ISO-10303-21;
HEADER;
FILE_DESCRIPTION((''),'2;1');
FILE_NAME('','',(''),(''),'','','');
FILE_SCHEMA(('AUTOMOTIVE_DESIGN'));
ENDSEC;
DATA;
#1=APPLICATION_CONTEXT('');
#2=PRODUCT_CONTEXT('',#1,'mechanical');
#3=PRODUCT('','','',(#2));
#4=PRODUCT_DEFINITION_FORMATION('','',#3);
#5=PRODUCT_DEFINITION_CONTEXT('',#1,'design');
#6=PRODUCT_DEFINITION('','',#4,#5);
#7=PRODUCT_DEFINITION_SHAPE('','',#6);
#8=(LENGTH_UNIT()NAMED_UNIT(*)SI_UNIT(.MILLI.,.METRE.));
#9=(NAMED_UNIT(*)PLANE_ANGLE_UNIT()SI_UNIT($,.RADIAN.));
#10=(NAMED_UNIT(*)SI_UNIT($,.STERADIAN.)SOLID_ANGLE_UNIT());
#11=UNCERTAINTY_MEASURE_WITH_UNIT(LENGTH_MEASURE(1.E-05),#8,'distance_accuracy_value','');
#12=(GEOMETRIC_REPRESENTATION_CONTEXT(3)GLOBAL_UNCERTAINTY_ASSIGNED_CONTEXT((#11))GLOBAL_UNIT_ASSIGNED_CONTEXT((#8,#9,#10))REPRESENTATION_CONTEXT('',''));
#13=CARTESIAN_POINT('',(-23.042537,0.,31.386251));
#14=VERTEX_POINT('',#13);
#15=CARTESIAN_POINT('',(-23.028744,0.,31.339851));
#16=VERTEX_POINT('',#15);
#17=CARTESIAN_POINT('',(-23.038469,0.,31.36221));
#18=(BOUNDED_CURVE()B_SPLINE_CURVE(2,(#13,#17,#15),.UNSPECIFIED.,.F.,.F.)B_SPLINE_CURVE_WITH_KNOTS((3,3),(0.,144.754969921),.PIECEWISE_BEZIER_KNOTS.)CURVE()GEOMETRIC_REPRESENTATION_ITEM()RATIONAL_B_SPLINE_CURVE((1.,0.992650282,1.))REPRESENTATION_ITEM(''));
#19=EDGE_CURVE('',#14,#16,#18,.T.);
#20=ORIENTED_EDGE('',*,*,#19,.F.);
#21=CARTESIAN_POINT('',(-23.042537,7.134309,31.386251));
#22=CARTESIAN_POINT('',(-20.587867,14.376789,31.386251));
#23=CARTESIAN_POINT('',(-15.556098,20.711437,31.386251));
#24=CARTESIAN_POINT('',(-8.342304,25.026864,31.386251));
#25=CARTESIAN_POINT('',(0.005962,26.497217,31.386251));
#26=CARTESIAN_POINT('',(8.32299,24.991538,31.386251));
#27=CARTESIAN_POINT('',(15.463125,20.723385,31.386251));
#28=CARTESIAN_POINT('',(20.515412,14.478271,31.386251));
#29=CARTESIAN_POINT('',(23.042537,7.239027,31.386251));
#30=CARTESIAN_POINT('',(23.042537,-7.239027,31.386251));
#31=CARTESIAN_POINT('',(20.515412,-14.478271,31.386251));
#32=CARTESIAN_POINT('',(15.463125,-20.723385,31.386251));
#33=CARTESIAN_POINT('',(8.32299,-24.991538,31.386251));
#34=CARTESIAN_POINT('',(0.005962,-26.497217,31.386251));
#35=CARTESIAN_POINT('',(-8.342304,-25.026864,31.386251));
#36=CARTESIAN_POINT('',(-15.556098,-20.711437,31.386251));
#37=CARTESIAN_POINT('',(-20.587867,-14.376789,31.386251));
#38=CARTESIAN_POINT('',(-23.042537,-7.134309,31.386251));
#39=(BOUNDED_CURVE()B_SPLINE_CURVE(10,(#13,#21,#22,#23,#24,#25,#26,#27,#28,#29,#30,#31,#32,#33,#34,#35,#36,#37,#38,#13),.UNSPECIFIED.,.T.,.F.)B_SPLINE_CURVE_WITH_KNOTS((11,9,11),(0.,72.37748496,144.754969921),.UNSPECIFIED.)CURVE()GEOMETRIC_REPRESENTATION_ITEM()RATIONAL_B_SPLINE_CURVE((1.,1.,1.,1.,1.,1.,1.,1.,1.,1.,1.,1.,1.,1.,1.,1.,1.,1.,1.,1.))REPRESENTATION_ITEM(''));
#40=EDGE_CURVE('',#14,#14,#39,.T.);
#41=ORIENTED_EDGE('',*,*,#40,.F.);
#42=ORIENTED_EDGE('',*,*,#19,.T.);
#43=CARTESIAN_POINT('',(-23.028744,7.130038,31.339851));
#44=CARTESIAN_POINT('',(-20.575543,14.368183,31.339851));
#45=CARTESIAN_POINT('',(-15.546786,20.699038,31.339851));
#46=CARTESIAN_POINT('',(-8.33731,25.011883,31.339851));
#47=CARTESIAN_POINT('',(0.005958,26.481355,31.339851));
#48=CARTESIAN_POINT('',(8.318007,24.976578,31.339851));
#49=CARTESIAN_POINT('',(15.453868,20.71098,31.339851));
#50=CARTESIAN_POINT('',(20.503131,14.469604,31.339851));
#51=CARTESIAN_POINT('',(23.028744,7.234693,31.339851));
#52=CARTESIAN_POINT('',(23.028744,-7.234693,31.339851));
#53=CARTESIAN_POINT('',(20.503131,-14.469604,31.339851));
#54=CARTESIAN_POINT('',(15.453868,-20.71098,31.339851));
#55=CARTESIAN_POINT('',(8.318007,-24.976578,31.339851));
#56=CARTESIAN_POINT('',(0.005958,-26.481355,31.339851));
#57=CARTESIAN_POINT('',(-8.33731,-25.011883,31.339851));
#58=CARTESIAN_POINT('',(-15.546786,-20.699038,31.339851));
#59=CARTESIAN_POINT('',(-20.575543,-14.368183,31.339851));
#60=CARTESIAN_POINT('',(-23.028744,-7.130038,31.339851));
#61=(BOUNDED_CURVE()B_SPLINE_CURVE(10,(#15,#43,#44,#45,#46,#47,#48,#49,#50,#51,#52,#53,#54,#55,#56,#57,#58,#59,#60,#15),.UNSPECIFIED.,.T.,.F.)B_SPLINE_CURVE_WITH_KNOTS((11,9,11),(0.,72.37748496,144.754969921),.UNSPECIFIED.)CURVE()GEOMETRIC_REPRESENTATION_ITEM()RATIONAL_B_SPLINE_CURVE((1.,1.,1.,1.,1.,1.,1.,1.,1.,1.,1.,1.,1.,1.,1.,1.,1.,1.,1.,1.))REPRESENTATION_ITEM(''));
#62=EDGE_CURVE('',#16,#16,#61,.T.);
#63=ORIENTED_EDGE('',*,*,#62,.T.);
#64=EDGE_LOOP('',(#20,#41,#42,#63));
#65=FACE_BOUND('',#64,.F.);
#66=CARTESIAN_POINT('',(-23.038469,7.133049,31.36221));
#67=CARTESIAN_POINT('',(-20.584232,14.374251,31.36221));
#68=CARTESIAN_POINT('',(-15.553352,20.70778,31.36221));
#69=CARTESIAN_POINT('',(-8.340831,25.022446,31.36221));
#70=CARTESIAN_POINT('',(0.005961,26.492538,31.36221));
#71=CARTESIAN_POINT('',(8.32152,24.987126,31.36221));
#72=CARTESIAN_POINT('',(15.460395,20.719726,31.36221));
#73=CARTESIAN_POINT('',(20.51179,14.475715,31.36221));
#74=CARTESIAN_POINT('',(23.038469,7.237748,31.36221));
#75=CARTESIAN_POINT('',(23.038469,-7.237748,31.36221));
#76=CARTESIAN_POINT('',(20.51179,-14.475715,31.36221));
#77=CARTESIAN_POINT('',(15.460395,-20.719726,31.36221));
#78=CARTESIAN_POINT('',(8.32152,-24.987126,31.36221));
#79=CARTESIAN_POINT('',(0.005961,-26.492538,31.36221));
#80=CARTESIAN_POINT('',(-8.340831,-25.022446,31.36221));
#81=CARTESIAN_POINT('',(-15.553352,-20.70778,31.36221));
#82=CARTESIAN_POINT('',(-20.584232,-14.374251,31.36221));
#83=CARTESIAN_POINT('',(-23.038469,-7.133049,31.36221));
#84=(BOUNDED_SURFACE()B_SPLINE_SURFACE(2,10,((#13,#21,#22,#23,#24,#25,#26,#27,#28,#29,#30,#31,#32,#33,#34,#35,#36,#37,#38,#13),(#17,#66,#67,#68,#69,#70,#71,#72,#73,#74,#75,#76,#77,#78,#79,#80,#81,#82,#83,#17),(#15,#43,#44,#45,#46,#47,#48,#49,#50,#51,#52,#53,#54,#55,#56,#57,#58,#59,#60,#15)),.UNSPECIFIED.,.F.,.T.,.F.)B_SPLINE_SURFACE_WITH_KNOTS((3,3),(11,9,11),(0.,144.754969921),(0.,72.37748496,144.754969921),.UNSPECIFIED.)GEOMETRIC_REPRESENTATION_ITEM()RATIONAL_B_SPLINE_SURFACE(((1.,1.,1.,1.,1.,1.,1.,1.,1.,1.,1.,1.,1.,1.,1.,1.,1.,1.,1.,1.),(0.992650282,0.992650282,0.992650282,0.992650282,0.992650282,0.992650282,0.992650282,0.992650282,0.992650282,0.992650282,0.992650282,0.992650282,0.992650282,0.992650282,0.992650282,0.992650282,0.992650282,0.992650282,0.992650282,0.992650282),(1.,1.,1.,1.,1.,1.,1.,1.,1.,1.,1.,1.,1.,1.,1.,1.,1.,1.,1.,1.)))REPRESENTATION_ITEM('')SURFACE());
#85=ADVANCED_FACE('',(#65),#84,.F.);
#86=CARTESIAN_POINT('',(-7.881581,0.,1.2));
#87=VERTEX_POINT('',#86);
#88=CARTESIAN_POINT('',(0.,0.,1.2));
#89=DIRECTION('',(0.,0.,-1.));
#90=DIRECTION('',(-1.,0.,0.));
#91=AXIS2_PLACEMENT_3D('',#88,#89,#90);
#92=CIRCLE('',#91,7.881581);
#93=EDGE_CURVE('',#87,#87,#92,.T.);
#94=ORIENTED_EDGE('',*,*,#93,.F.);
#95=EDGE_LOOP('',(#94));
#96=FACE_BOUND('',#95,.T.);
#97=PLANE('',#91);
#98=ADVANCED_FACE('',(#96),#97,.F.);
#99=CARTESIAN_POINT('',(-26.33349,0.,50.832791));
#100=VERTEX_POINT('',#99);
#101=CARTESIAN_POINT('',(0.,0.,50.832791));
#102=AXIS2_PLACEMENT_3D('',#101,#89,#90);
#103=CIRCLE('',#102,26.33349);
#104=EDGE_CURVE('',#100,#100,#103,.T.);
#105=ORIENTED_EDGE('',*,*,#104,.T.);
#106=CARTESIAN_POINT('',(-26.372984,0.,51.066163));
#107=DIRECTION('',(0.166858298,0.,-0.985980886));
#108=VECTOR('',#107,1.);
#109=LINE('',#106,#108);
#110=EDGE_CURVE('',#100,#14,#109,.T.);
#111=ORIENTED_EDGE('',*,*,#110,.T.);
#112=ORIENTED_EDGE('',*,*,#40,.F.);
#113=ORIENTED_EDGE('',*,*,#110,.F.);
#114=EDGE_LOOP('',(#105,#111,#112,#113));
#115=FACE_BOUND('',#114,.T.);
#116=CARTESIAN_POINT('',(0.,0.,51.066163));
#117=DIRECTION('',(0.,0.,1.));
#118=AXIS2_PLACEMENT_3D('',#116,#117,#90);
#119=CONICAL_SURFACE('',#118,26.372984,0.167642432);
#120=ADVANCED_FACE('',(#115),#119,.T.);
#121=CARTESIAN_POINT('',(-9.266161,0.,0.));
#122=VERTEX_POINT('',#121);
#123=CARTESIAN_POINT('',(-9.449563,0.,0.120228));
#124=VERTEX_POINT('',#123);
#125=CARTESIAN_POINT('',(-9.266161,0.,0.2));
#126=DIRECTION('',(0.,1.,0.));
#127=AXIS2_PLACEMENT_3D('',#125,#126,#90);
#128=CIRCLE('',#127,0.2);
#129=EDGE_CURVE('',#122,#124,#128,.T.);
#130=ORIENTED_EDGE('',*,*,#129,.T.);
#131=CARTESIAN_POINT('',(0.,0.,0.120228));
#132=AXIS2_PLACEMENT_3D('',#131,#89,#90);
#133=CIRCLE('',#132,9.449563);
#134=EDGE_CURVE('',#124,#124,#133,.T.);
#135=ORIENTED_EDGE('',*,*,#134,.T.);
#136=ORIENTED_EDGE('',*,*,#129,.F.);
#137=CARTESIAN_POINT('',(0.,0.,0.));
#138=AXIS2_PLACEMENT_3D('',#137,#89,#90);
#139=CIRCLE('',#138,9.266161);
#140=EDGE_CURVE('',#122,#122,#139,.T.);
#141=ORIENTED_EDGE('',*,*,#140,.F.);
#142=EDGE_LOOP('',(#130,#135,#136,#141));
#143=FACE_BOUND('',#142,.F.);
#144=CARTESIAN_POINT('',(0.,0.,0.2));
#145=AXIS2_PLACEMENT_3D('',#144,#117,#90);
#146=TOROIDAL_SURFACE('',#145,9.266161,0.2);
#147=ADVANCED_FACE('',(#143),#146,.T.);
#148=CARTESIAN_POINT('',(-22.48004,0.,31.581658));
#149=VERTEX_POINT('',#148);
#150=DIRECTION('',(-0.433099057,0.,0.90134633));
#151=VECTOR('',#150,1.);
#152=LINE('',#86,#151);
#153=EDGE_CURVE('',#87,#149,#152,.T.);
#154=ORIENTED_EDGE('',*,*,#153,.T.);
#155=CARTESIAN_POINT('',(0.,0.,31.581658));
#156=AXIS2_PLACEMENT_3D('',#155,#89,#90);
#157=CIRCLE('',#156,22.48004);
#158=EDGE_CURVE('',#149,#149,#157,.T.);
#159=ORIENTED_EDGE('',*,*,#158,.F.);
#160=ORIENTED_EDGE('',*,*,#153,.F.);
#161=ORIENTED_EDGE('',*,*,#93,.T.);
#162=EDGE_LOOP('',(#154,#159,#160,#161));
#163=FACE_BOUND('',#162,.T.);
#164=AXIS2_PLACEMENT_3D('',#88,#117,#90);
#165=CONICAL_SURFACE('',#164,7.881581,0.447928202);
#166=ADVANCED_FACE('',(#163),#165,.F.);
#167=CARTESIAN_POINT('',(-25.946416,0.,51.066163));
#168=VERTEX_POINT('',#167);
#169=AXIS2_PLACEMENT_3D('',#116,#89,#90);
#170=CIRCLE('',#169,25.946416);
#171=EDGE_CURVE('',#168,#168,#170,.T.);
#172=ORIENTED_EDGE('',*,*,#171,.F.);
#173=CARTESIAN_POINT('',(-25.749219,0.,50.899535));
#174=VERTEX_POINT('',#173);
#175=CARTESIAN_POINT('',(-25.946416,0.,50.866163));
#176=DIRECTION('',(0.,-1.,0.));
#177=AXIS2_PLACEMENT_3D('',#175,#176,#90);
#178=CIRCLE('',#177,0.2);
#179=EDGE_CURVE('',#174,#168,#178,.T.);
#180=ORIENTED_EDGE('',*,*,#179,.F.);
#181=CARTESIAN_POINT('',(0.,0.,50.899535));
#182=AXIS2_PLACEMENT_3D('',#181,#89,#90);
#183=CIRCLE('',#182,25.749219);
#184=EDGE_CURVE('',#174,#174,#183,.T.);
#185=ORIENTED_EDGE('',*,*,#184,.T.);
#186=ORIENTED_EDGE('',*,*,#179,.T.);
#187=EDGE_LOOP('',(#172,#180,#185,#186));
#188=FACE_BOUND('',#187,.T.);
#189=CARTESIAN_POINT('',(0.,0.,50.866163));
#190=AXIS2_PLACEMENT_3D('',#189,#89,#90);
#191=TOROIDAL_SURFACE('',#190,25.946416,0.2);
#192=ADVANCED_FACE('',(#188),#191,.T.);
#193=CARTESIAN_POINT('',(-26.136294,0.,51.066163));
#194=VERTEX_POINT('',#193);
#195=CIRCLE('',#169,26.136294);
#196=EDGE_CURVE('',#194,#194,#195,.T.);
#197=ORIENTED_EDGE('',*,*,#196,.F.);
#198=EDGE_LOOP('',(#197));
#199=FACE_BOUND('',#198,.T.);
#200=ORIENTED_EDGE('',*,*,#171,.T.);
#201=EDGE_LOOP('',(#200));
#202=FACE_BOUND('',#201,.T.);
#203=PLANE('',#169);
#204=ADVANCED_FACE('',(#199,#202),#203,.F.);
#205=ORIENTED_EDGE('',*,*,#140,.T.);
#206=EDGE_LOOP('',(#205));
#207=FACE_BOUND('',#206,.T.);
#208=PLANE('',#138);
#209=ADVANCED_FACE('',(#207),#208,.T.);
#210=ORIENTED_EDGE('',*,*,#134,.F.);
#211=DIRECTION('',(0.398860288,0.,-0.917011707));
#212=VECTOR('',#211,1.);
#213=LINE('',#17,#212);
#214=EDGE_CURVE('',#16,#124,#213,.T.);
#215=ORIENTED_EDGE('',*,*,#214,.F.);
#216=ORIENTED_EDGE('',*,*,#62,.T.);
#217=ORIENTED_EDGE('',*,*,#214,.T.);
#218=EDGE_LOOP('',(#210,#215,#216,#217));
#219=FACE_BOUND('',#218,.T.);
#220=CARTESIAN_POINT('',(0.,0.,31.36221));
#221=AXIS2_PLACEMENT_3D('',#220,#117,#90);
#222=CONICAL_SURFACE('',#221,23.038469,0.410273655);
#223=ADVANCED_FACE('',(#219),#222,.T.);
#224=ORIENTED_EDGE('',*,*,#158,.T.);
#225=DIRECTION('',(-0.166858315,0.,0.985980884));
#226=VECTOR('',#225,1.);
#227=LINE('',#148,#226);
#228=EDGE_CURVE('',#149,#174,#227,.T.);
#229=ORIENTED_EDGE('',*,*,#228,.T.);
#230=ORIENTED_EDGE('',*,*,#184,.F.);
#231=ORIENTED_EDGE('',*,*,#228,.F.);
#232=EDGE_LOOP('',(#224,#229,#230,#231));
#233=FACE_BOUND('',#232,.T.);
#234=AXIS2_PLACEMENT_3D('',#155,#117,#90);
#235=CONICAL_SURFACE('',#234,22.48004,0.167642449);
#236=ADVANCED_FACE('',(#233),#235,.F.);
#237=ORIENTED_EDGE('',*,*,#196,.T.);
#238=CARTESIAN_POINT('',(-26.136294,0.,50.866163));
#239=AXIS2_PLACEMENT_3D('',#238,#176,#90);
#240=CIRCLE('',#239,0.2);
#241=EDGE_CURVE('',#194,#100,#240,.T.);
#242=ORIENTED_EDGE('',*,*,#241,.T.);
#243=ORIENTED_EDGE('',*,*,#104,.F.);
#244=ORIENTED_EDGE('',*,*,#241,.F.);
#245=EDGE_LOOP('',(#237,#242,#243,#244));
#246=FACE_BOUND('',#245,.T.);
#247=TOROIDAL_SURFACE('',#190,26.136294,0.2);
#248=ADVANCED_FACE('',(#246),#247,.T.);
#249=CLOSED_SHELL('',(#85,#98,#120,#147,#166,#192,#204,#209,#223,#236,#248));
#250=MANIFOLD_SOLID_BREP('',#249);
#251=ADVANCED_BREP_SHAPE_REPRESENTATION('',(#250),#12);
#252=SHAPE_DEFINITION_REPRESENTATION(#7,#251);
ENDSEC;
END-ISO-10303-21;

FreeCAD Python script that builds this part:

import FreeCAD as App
import Part
import Sketcher
Q = App.Units.Quantity


def edges_at(feature, points):
    """Names of the edges that pass closest to the given points."""
    edges = feature.Shape.Edges
    near = lambda p: min(range(len(edges)), key=lambda i: edges[i].distToShape(Part.Vertex(*p))[0])
    return sorted({f"Edge{near(p) + 1}" for p in points})

doc = App.newDocument("Part")
body = doc.addObject("PartDesign::Body", "Body")

# Sketch on XZ plane
sketch1 = doc.addObject("Sketcher::SketchObject", "Sketch")
body.addObject(sketch1)
sketch1.AttachmentSupport = (doc.XZ_Plane, [""])
sketch1.MapMode = "FlatFace"
sketch1.addGeometry([
    Part.LineSegment(App.Vector(-9.397269, 0, 0), App.Vector(0, 0, 0)),  # 0
    Part.LineSegment(App.Vector(0, 0, 0), App.Vector(0, 1.2, 0)),  # 1
    Part.LineSegment(App.Vector(0, 1.2, 0), App.Vector(-7.881581, 1.2, 0)),  # 2
    Part.LineSegment(App.Vector(-7.881581, 1.2, 0), App.Vector(-22.48004, 31.581658, 0)),  # 3
    Part.LineSegment(App.Vector(-22.48004, 31.581658, 0), App.Vector(-25.777418, 51.066163, 0)),  # 4
    Part.LineSegment(App.Vector(-25.777418, 51.066163, 0), App.Vector(-26.372984, 51.066163, 0)),  # 5
    Part.LineSegment(App.Vector(-26.372984, 51.066163, 0), App.Vector(-23.038469, 31.36221, 0)),  # 6
    Part.LineSegment(App.Vector(-23.038469, 31.36221, 0), App.Vector(-9.397269, 0, 0)),  # 7
], False)
sketch1.addConstraint([
    Sketcher.Constraint("Coincident", 0, 2, 1, 1),
    Sketcher.Constraint("Coincident", 1, 2, 2, 1),
    Sketcher.Constraint("Coincident", 2, 2, 3, 1),
    Sketcher.Constraint("Coincident", 3, 2, 4, 1),
    Sketcher.Constraint("Coincident", 4, 2, 5, 1),
    Sketcher.Constraint("Coincident", 5, 2, 6, 1),
    Sketcher.Constraint("Coincident", 6, 2, 7, 1),
    Sketcher.Constraint("Coincident", 7, 2, 0, 1),
    Sketcher.Constraint("Horizontal", 0),
    Sketcher.Constraint("Vertical", 1),
    Sketcher.Constraint("Horizontal", 2),
    Sketcher.Constraint("Horizontal", 5),
    Sketcher.Constraint("Coincident", 0, 2, -1, 1),
    Sketcher.Constraint("DistanceY", 1, 1, 1, 2, Q("1.2 mm")),
    Sketcher.Constraint("DistanceX", 0, 1, 0, 2, Q("9.397269 mm")),
    Sketcher.Constraint("DistanceX", 2, 2, 2, 1, Q("7.881581 mm")),
    Sketcher.Constraint("DistanceX", 6, 2, 7, 2, Q("13.6412 mm")),
    Sketcher.Constraint("DistanceX", 5, 2, 5, 1, Q("0.595566 mm")),
    Sketcher.Constraint("DistanceX", 3, 2, -1, 1, Q("22.48004 mm")),
    Sketcher.Constraint("DistanceY", -1, 1, 3, 2, Q("31.581658 mm")),
    Sketcher.Constraint("DistanceX", 4, 2, -1, 1, Q("25.777418 mm")),
    Sketcher.Constraint("DistanceY", -1, 1, 6, 2, Q("31.36221 mm")),
    Sketcher.Constraint("Distance", 4, Q("19.761544 mm")),
])
revolution = doc.addObject("PartDesign::Revolution", "Revolution")
body.addObject(revolution)
revolution.Profile = sketch1
revolution.ReferenceAxis = (sketch1, ["V_Axis"])
revolution.Angle = 360
doc.recompute()

fillet = doc.addObject("PartDesign::Fillet", "Fillet")
body.addObject(fillet)
fillet.Base = (revolution, edges_at(revolution, [
    (23.038, 0, 31.362),
    (26.373, 0, 51.066),
    (9.397, 0, 0),
    (25.777, 0, 51.066),
]))
fillet.Radius = 0.2

doc.recompute()
